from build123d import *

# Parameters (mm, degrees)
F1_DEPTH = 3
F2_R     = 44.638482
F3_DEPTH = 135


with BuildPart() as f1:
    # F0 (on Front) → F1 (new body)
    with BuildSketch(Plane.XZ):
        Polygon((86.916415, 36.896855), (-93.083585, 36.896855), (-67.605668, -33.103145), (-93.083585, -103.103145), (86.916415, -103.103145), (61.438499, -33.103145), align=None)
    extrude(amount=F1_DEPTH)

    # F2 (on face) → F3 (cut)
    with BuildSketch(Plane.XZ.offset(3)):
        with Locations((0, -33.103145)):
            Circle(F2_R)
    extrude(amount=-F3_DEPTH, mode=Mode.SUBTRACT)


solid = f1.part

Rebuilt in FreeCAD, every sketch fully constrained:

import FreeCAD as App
import Part
import Sketcher
Q = App.Units.Quantity

doc = App.newDocument("Part")
params = doc.addObject("Spreadsheet::Sheet", "Params")
for row, (alias, value) in enumerate([
    ("sketch1_width", "180 mm"),
    ("pad1_length", "3 mm"),
    ("pocket1_length", "135 mm"),
], start=1):
    params.set(f"A{row}", alias)
    params.set(f"B{row}", "=" + value)
    params.setAlias(f"B{row}", alias)

body = doc.addObject("PartDesign::Body", "Body")

# Sketch on XZ plane
sketch1 = doc.addObject("Sketcher::SketchObject", "Sketch")
body.addObject(sketch1)
sketch1.AttachmentSupport = (doc.XZ_Plane, [""])
sketch1.MapMode = "FlatFace"
sketch1.addGeometry([
    Part.LineSegment(App.Vector(86.916415, 36.896855, 0), App.Vector(-93.083585, 36.896855, 0)),  # 0
    Part.LineSegment(App.Vector(-93.083585, 36.896855, 0), App.Vector(-67.605668, -33.103145, 0)),  # 1
    Part.LineSegment(App.Vector(-67.605668, -33.103145, 0), App.Vector(-93.083585, -103.103145, 0)),  # 2
    Part.LineSegment(App.Vector(-93.083585, -103.103145, 0), App.Vector(86.916415, -103.103145, 0)),  # 3
    Part.LineSegment(App.Vector(86.916415, -103.103145, 0), App.Vector(61.438499, -33.103145, 0)),  # 4
    Part.LineSegment(App.Vector(61.438499, -33.103145, 0), App.Vector(86.916415, 36.896855, 0)),  # 5
], False)
sketch1.addConstraint([
    Sketcher.Constraint("Coincident", 0, 2, 1, 1),
    Sketcher.Constraint("Coincident", 1, 2, 2, 1),
    Sketcher.Constraint("Coincident", 2, 2, 3, 1),
    Sketcher.Constraint("Coincident", 3, 2, 4, 1),
    Sketcher.Constraint("Coincident", 4, 2, 5, 1),
    Sketcher.Constraint("Coincident", 5, 2, 0, 1),
    Sketcher.Constraint("Horizontal", 0),
    Sketcher.Constraint("Horizontal", 3),
    Sketcher.Constraint("Parallel", 1, 4),
    Sketcher.Constraint("Parallel", 2, 5),
    Sketcher.Constraint("Horizontal", 1, 2, 4, 2),
    Sketcher.Constraint("Vertical", 0, 2, 2, 2),
    Sketcher.Constraint("Vertical", 3, 2, 5, 2),
    Sketcher.Constraint("DistanceX", 0, 2, 0, 1, Q("180 mm")),
    Sketcher.Constraint("Angle", 1, Q("-70 deg")),
    Sketcher.Constraint("DistanceY", 1, 2, 0, 2, Q("70 mm")),
    Sketcher.Constraint("DistanceX", -1, 1, 4, 2, Q("61.438499 mm")),
    Sketcher.Constraint("DistanceY", -1, 1, 0, 2, Q("36.896855 mm")),
])
sketch1.setExpression("Constraints[13]", "Params.sketch1_width")
pad1 = doc.addObject("PartDesign::Pad", "Pad")
body.addObject(pad1)
pad1.Profile = sketch1
pad1.setExpression("Length", "Params.pad1_length")

# Sketch on XZ plane
sketch2 = doc.addObject("Sketcher::SketchObject", "Sketch001")
body.addObject(sketch2)
sketch2.AttachmentSupport = (doc.XZ_Plane, [""])
sketch2.MapMode = "FlatFace"
sketch2.AttachmentOffset = App.Placement(App.Vector(0, 0, 3), App.Rotation())
sketch2.addGeometry(Part.Circle(App.Vector(0, -33.103145, 0), App.Vector(0, 0, 1), 44.638482), False)
sketch2.addConstraint([
    Sketcher.Constraint("PointOnObject", 0, 3, -2),
    Sketcher.Constraint("Diameter", 0, Q("89.276964 mm")),
    Sketcher.Constraint("DistanceY", 0, 3, -1, 1, Q("33.103145 mm")),
])
pocket1 = doc.addObject("PartDesign::Pocket", "Pocket")
body.addObject(pocket1)
pocket1.Profile = sketch2
pocket1.setExpression("Length", "Params.pocket1_length")

doc.recompute()
